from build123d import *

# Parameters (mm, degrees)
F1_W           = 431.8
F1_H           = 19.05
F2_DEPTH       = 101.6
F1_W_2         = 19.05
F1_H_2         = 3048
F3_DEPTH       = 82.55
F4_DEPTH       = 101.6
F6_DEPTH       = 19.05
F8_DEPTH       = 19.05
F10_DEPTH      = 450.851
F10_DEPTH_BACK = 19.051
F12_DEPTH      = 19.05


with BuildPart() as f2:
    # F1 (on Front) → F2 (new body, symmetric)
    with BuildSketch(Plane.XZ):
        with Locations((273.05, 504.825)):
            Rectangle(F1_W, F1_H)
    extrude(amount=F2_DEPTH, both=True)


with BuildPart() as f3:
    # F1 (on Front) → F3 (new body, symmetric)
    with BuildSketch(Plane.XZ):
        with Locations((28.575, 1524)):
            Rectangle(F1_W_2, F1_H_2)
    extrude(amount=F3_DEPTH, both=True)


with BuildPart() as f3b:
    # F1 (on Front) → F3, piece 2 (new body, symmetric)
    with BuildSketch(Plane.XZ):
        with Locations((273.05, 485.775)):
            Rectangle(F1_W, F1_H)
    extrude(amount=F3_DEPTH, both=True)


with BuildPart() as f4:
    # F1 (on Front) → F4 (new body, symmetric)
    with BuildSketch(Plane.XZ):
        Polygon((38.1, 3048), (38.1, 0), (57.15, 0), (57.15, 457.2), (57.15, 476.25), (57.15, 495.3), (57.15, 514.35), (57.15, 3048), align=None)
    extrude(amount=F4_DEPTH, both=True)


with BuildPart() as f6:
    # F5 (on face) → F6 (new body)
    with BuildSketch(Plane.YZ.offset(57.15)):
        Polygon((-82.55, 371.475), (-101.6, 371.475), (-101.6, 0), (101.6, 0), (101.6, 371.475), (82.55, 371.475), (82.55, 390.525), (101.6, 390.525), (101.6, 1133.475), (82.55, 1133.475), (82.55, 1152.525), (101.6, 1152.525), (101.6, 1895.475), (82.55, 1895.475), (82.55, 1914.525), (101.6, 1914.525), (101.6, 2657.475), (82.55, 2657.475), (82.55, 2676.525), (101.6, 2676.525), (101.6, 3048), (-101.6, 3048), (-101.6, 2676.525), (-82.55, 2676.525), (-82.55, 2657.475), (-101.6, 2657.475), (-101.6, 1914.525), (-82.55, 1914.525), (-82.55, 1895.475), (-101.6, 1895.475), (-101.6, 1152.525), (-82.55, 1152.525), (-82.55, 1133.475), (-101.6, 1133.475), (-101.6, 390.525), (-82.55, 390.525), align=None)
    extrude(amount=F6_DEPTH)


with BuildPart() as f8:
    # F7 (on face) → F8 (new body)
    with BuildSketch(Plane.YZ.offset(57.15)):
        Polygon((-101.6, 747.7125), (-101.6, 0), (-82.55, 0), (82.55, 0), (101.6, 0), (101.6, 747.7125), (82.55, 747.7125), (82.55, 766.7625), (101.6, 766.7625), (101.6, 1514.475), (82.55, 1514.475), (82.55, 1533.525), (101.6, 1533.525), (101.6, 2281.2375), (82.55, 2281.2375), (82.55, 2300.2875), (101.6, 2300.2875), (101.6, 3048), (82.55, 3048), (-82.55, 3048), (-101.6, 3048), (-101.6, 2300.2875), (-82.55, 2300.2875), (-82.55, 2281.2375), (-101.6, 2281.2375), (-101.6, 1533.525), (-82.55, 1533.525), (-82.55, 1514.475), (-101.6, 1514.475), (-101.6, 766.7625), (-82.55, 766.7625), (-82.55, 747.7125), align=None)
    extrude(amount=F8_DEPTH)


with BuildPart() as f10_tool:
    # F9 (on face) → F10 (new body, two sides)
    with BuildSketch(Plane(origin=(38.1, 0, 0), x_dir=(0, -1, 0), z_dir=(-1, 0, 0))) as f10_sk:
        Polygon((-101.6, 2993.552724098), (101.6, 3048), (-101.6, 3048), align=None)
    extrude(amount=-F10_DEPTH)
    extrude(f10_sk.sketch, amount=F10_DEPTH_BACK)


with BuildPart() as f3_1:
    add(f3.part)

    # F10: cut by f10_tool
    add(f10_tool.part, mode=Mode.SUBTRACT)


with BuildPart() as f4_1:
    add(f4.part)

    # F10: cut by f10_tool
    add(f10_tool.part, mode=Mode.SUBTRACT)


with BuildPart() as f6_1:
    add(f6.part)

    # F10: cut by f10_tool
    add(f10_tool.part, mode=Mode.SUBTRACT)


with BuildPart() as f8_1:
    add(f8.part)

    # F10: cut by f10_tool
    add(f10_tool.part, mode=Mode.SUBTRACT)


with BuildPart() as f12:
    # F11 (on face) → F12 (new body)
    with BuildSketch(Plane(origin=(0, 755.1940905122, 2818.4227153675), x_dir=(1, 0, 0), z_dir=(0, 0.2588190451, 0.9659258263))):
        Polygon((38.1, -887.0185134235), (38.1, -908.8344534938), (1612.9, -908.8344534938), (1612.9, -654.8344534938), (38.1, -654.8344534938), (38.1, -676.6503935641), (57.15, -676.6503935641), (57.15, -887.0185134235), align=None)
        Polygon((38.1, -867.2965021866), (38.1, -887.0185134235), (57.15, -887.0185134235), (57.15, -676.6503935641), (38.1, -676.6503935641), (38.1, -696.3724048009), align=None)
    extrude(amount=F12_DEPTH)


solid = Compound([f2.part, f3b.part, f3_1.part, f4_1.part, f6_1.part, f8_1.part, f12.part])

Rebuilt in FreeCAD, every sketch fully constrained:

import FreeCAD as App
import Part
import Sketcher
Q = App.Units.Quantity


def add_polygon(sketch, points):
    """Adds a closed chain of lines whose ends are joined by coincident constraints."""
    first, n = sketch.GeometryCount, len(points)
    for a, b in zip(points, points[1:] + points[:1]):
        sketch.addGeometry(Part.LineSegment(App.Vector(*a, 0), App.Vector(*b, 0)), False)
    for i in range(n):
        sketch.addConstraint(Sketcher.Constraint("Coincident", first + i, 2, first + (i + 1) % n, 1))

doc = App.newDocument("Part")
params = doc.addObject("Spreadsheet::Sheet", "Params")
for row, (alias, value) in enumerate([
    ("sketch1_width", "17 in"),
    ("sketch1_height", "0.75 in"),
    ("pad1_length", "8 in"),
    ("sketch2_height", "120 in"),
    ("sketch2_width", "0.75 in"),
    ("pad2_length", "6.5 in"),
    ("sketch3_width", "17 in"),
    ("sketch3_height", "0.75 in"),
    ("pad3_length", "6.5 in"),
    ("sketch4_height", "120 in"),
    ("sketch4_width", "0.75 in"),
    ("pad4_length", "8 in"),
    ("sketch5_width", "8 in"),
    ("sketch5_width2", "0.75 in"),
    ("pad5_length", "0.75 in"),
    ("sketch6_width", "8 in"),
    ("sketch6_width2", "0.75 in"),
    ("pad6_length", "0.75 in"),
    ("sketch7_width", "8 in"),
    ("pad7_length", "450.851 mm"),
    ("pad7_length2", "19.051 mm"),
    ("sketch8_width", "62 in"),
    ("sketch8_height", "10 in"),
    ("pad8_length", "0.75 in"),
], start=1):
    params.set(f"A{row}", alias)
    params.set(f"B{row}", "=" + value)
    params.setAlias(f"B{row}", alias)

body = doc.addObject("PartDesign::Body", "Body")

# Sketch on XZ plane
sketch1 = doc.addObject("Sketcher::SketchObject", "Sketch")
body.addObject(sketch1)
sketch1.AttachmentSupport = (doc.XZ_Plane, [""])
sketch1.MapMode = "FlatFace"
add_polygon(sketch1, [(57, 514), (57, 495), (489, 495), (489, 514)])  # lines 0-3
sketch1.addConstraint(Sketcher.Constraint("Vertical", 0))
sketch1.addConstraint(Sketcher.Constraint("Horizontal", 1))
sketch1.addConstraint(Sketcher.Constraint("Vertical", 2))
sketch1.addConstraint(Sketcher.Constraint("Horizontal", 3))
sketch1.addConstraint(Sketcher.Constraint("DistanceX", 1, 1, 1, 2, Q("17 in")))
sketch1.addConstraint(Sketcher.Constraint("DistanceY", 0, 2, 0, 1, Q("0.75 in")))
sketch1.addConstraint(Sketcher.Constraint("DistanceY", -1, 1, 0, 2, Q("19.5 in")))
sketch1.addConstraint(Sketcher.Constraint("DistanceX", -1, 1, 0, 2, Q("2.25 in")))
sketch1.setExpression("Constraints[8]", "Params.sketch1_width")
sketch1.setExpression("Constraints[9]", "Params.sketch1_height")
pad1 = doc.addObject("PartDesign::Pad", "Pad")
body.addObject(pad1)
pad1.Profile = sketch1
pad1.setExpression("Length", "Params.pad1_length")
pad1.Midplane = True
body2 = doc.addObject("PartDesign::Body", "Body001")

# Sketch on XZ plane
sketch2 = doc.addObject("Sketcher::SketchObject", "Sketch001")
body2.addObject(sketch2)
sketch2.AttachmentSupport = (doc.getObject("XZ_Plane001"), [""])
sketch2.MapMode = "FlatFace"
add_polygon(sketch2, [(19, 3048), (19, 0), (38, 0), (38, 3048)])  # lines 0-3
sketch2.addConstraint(Sketcher.Constraint("Vertical", 0))
sketch2.addConstraint(Sketcher.Constraint("Horizontal", 1))
sketch2.addConstraint(Sketcher.Constraint("Vertical", 2))
sketch2.addConstraint(Sketcher.Constraint("Horizontal", 3))
sketch2.addConstraint(Sketcher.Constraint("PointOnObject", 0, 2, -1))
sketch2.addConstraint(Sketcher.Constraint("DistanceY", 0, 2, 0, 1, Q("120 in")))
sketch2.addConstraint(Sketcher.Constraint("DistanceX", 1, 1, 1, 2, Q("0.75 in")))
sketch2.addConstraint(Sketcher.Constraint("DistanceX", -1, 1, 1, 2, Q("1.5 in")))
sketch2.setExpression("Constraints[9]", "Params.sketch2_height")
sketch2.setExpression("Constraints[10]", "Params.sketch2_width")
pad2 = doc.addObject("PartDesign::Pad", "Pad001")
body2.addObject(pad2)
pad2.Profile = sketch2
pad2.setExpression("Length", "Params.pad2_length")
pad2.Midplane = True
body3 = doc.addObject("PartDesign::Body", "Body002")

# Sketch on XZ plane
sketch3 = doc.addObject("Sketcher::SketchObject", "Sketch002")
body3.addObject(sketch3)
sketch3.AttachmentSupport = (doc.getObject("XZ_Plane002"), [""])
sketch3.MapMode = "FlatFace"
add_polygon(sketch3, [(57, 495), (57, 476), (489, 476), (489, 495)])  # lines 0-3
sketch3.addConstraint(Sketcher.Constraint("Vertical", 0))
sketch3.addConstraint(Sketcher.Constraint("Horizontal", 1))
sketch3.addConstraint(Sketcher.Constraint("Vertical", 2))
sketch3.addConstraint(Sketcher.Constraint("Horizontal", 3))
sketch3.addConstraint(Sketcher.Constraint("DistanceX", 1, 1, 1, 2, Q("17 in")))
sketch3.addConstraint(Sketcher.Constraint("DistanceY", 0, 2, 0, 1, Q("0.75 in")))
sketch3.addConstraint(Sketcher.Constraint("DistanceY", -1, 1, 2, 2, Q("19.5 in")))
sketch3.addConstraint(Sketcher.Constraint("DistanceX", -1, 1, 0, 2, Q("2.25 in")))
sketch3.setExpression("Constraints[8]", "Params.sketch3_width")
sketch3.setExpression("Constraints[9]", "Params.sketch3_height")
pad3 = doc.addObject("PartDesign::Pad", "Pad002")
body3.addObject(pad3)
pad3.Profile = sketch3
pad3.setExpression("Length", "Params.pad3_length")
pad3.Midplane = True
body4 = doc.addObject("PartDesign::Body", "Body003")

# Sketch on XZ plane
sketch4 = doc.addObject("Sketcher::SketchObject", "Sketch003")
body4.addObject(sketch4)
sketch4.AttachmentSupport = (doc.getObject("XZ_Plane003"), [""])
sketch4.MapMode = "FlatFace"
add_polygon(sketch4, [(38, 3048), (38, 0), (57, 0), (57, 3048)])  # lines 0-3
sketch4.addConstraint(Sketcher.Constraint("Vertical", 0))
sketch4.addConstraint(Sketcher.Constraint("Horizontal", 1))
sketch4.addConstraint(Sketcher.Constraint("Vertical", 2))
sketch4.addConstraint(Sketcher.Constraint("Horizontal", 3))
sketch4.addConstraint(Sketcher.Constraint("PointOnObject", 0, 2, -1))
sketch4.addConstraint(Sketcher.Constraint("DistanceY", 0, 2, 0, 1, Q("120 in")))
sketch4.addConstraint(Sketcher.Constraint("DistanceX", 1, 1, 1, 2, Q("0.75 in")))
sketch4.addConstraint(Sketcher.Constraint("DistanceX", -1, 1, 0, 2, Q("1.5 in")))
sketch4.setExpression("Constraints[9]", "Params.sketch4_height")
sketch4.setExpression("Constraints[10]", "Params.sketch4_width")
pad4 = doc.addObject("PartDesign::Pad", "Pad003")
body4.addObject(pad4)
pad4.Profile = sketch4
pad4.setExpression("Length", "Params.pad4_length")
pad4.Midplane = True
body5 = doc.addObject("PartDesign::Body", "Body004")

# Sketch on YZ plane
sketch5 = doc.addObject("Sketcher::SketchObject", "Sketch004")
body5.addObject(sketch5)
sketch5.AttachmentSupport = (doc.getObject("YZ_Plane004"), [""])
sketch5.MapMode = "FlatFace"
sketch5.AttachmentOffset = App.Placement(App.Vector(0, 0, 2.25 * 25.4), App.Rotation())
add_polygon(sketch5, [(-83, 371), (-102, 371), (-102, 0), (102, 0), (102, 371), (83, 371), (83, 391), (102, 391), (102, 1133), (83, 1133), (83, 1153), (102, 1153), (102, 1895), (83, 1895), (83, 1915), (102, 1915), (102, 2657), (83, 2657), (83, 2677), (102, 2677), (102, 3048), (-102, 3048), (-102, 2677), (-83, 2677), (-83, 2657), (-102, 2657), (-102, 1915), (-83, 1915), (-83, 1895), (-102, 1895), (-102, 1153), (-83, 1153), (-83, 1133), (-102, 1133), (-102, 391), (-83, 391)])  # lines 0-35
sketch5.addConstraint(Sketcher.Constraint("Horizontal", 0))
sketch5.addConstraint(Sketcher.Constraint("Vertical", 1))
sketch5.addConstraint(Sketcher.Constraint("Horizontal", 2))
sketch5.addConstraint(Sketcher.Constraint("Vertical", 3))
sketch5.addConstraint(Sketcher.Constraint("Horizontal", 4))
sketch5.addConstraint(Sketcher.Constraint("Vertical", 5))
sketch5.addConstraint(Sketcher.Constraint("Horizontal", 6))
sketch5.addConstraint(Sketcher.Constraint("Vertical", 7))
sketch5.addConstraint(Sketcher.Constraint("Horizontal", 8))
sketch5.addConstraint(Sketcher.Constraint("Vertical", 9))
sketch5.addConstraint(Sketcher.Constraint("Horizontal", 10))
sketch5.addConstraint(Sketcher.Constraint("Vertical", 11))
sketch5.addConstraint(Sketcher.Constraint("Horizontal", 12))
sketch5.addConstraint(Sketcher.Constraint("Vertical", 13))
sketch5.addConstraint(Sketcher.Constraint("Horizontal", 14))
sketch5.addConstraint(Sketcher.Constraint("Vertical", 15))
sketch5.addConstraint(Sketcher.Constraint("Horizontal", 16))
sketch5.addConstraint(Sketcher.Constraint("Vertical", 17))
sketch5.addConstraint(Sketcher.Constraint("Horizontal", 18))
sketch5.addConstraint(Sketcher.Constraint("Vertical", 19))
sketch5.addConstraint(Sketcher.Constraint("Horizontal", 20))
sketch5.addConstraint(Sketcher.Constraint("Vertical", 21))
sketch5.addConstraint(Sketcher.Constraint("Horizontal", 22))
sketch5.addConstraint(Sketcher.Constraint("Vertical", 23))
sketch5.addConstraint(Sketcher.Constraint("Horizontal", 24))
sketch5.addConstraint(Sketcher.Constraint("Vertical", 25))
sketch5.addConstraint(Sketcher.Constraint("Horizontal", 26))
sketch5.addConstraint(Sketcher.Constraint("Vertical", 27))
sketch5.addConstraint(Sketcher.Constraint("Horizontal", 28))
sketch5.addConstraint(Sketcher.Constraint("Vertical", 29))
sketch5.addConstraint(Sketcher.Constraint("Horizontal", 30))
sketch5.addConstraint(Sketcher.Constraint("Vertical", 31))
sketch5.addConstraint(Sketcher.Constraint("Horizontal", 32))
sketch5.addConstraint(Sketcher.Constraint("Vertical", 33))
sketch5.addConstraint(Sketcher.Constraint("Horizontal", 34))
sketch5.addConstraint(Sketcher.Constraint("Vertical", 35))
sketch5.addConstraint(Sketcher.Constraint("Symmetric", 1, 2, 2, 2, -1, 1))
sketch5.addConstraint(Sketcher.Constraint("Symmetric", 18, 2, 21, 2, -2))
sketch5.addConstraint(Sketcher.Constraint("Symmetric", 16, 2, 23, 2, -2))
sketch5.addConstraint(Sketcher.Constraint("Symmetric", 14, 2, 25, 2, -2))
sketch5.addConstraint(Sketcher.Constraint("Symmetric", 12, 2, 27, 2, -2))
sketch5.addConstraint(Sketcher.Constraint("Symmetric", 10, 2, 29, 2, -2))
sketch5.addConstraint(Sketcher.Constraint("Symmetric", 8, 2, 31, 2, -2))
sketch5.addConstraint(Sketcher.Constraint("Symmetric", 6, 2, 33, 2, -2))
sketch5.addConstraint(Sketcher.Constraint("Symmetric", 4, 2, 35, 2, -2))
sketch5.addConstraint(Sketcher.Constraint("Vertical", 3, 2, 6, 2))
sketch5.addConstraint(Sketcher.Constraint("Vertical", 5, 2, 8, 2))
sketch5.addConstraint(Sketcher.Constraint("Vertical", 7, 2, 10, 2))
sketch5.addConstraint(Sketcher.Constraint("Vertical", 9, 2, 12, 2))
sketch5.addConstraint(Sketcher.Constraint("Vertical", 11, 2, 14, 2))
sketch5.addConstraint(Sketcher.Constraint("Vertical", 13, 2, 16, 2))
sketch5.addConstraint(Sketcher.Constraint("Vertical", 15, 2, 18, 2))
sketch5.addConstraint(Sketcher.Constraint("Equal", 34, 5))
sketch5.addConstraint(Sketcher.Constraint("Equal", 5, 9))
sketch5.addConstraint(Sketcher.Constraint("Equal", 7, 11))
sketch5.addConstraint(Sketcher.Constraint("Equal", 9, 13))
sketch5.addConstraint(Sketcher.Constraint("Equal", 11, 15))
sketch5.addConstraint(Sketcher.Constraint("Equal", 13, 17))
sketch5.addConstraint(Sketcher.Constraint("Equal", 3, 19))
sketch5.addConstraint(Sketcher.Constraint("DistanceX", 2, 1, 2, 2, Q("8 in")))
sketch5.addConstraint(Sketcher.Constraint("DistanceY", -1, 1, 19, 2, Q("120 in")))
sketch5.addConstraint(Sketcher.Constraint("DistanceY", 3, 2, 7, 2, Q("30 in")))
sketch5.addConstraint(Sketcher.Constraint("DistanceX", 0, 2, 0, 1, Q("0.75 in")))
sketch5.setExpression("Constraints[95]", "Params.sketch5_width")
sketch5.setExpression("Constraints[98]", "Params.sketch5_width2")
pad5 = doc.addObject("PartDesign::Pad", "Pad004")
body5.addObject(pad5)
pad5.Profile = sketch5
pad5.setExpression("Length", "Params.pad5_length")
body6 = doc.addObject("PartDesign::Body", "Body005")

# Sketch on YZ plane
sketch6 = doc.addObject("Sketcher::SketchObject", "Sketch005")
body6.addObject(sketch6)
sketch6.AttachmentSupport = (doc.getObject("YZ_Plane005"), [""])
sketch6.MapMode = "FlatFace"
sketch6.AttachmentOffset = App.Placement(App.Vector(0, 0, 2.25 * 25.4), App.Rotation())
add_polygon(sketch6, [(-102, 748), (-102, 0), (102, 0), (102, 748), (83, 748), (83, 767), (102, 767), (102, 1514), (83, 1514), (83, 1534), (102, 1534), (102, 2281), (83, 2281), (83, 2300), (102, 2300), (102, 3048), (-102, 3048), (-102, 2300), (-83, 2300), (-83, 2281), (-102, 2281), (-102, 1534), (-83, 1534), (-83, 1514), (-102, 1514), (-102, 767), (-83, 767), (-83, 748)])  # lines 0-27
sketch6.addConstraint(Sketcher.Constraint("Vertical", 0))
sketch6.addConstraint(Sketcher.Constraint("Horizontal", 1))
sketch6.addConstraint(Sketcher.Constraint("Vertical", 2))
sketch6.addConstraint(Sketcher.Constraint("Horizontal", 3))
sketch6.addConstraint(Sketcher.Constraint("Vertical", 4))
sketch6.addConstraint(Sketcher.Constraint("Horizontal", 5))
sketch6.addConstraint(Sketcher.Constraint("Vertical", 6))
sketch6.addConstraint(Sketcher.Constraint("Horizontal", 7))
sketch6.addConstraint(Sketcher.Constraint("Vertical", 8))
sketch6.addConstraint(Sketcher.Constraint("Horizontal", 9))
sketch6.addConstraint(Sketcher.Constraint("Vertical", 10))
sketch6.addConstraint(Sketcher.Constraint("Horizontal", 11))
sketch6.addConstraint(Sketcher.Constraint("Vertical", 12))
sketch6.addConstraint(Sketcher.Constraint("Horizontal", 13))
sketch6.addConstraint(Sketcher.Constraint("Vertical", 14))
sketch6.addConstraint(Sketcher.Constraint("Horizontal", 15))
sketch6.addConstraint(Sketcher.Constraint("Vertical", 16))
sketch6.addConstraint(Sketcher.Constraint("Horizontal", 17))
sketch6.addConstraint(Sketcher.Constraint("Vertical", 18))
sketch6.addConstraint(Sketcher.Constraint("Horizontal", 19))
sketch6.addConstraint(Sketcher.Constraint("Vertical", 20))
sketch6.addConstraint(Sketcher.Constraint("Horizontal", 21))
sketch6.addConstraint(Sketcher.Constraint("Vertical", 22))
sketch6.addConstraint(Sketcher.Constraint("Horizontal", 23))
sketch6.addConstraint(Sketcher.Constraint("Vertical", 24))
sketch6.addConstraint(Sketcher.Constraint("Horizontal", 25))
sketch6.addConstraint(Sketcher.Constraint("Vertical", 26))
sketch6.addConstraint(Sketcher.Constraint("Horizontal", 27))
sketch6.addConstraint(Sketcher.Constraint("Symmetric", 0, 2, 1, 2, -1, 1))
sketch6.addConstraint(Sketcher.Constraint("Symmetric", 13, 2, 16, 2, -2))
sketch6.addConstraint(Sketcher.Constraint("Symmetric", 11, 2, 18, 2, -2))
sketch6.addConstraint(Sketcher.Constraint("Symmetric", 9, 2, 20, 2, -2))
sketch6.addConstraint(Sketcher.Constraint("Symmetric", 7, 2, 22, 2, -2))
sketch6.addConstraint(Sketcher.Constraint("Symmetric", 5, 2, 24, 2, -2))
sketch6.addConstraint(Sketcher.Constraint("Symmetric", 3, 2, 26, 2, -2))
sketch6.addConstraint(Sketcher.Constraint("Vertical", 2, 2, 5, 2))
sketch6.addConstraint(Sketcher.Constraint("Vertical", 4, 2, 7, 2))
sketch6.addConstraint(Sketcher.Constraint("Vertical", 6, 2, 9, 2))
sketch6.addConstraint(Sketcher.Constraint("Vertical", 8, 2, 11, 2))
sketch6.addConstraint(Sketcher.Constraint("Vertical", 10, 2, 13, 2))
sketch6.addConstraint(Sketcher.Constraint("Equal", 27, 4))
sketch6.addConstraint(Sketcher.Constraint("Equal", 2, 6))
sketch6.addConstraint(Sketcher.Constraint("Equal", 4, 8))
sketch6.addConstraint(Sketcher.Constraint("Equal", 6, 10))
sketch6.addConstraint(Sketcher.Constraint("Equal", 8, 12))
sketch6.addConstraint(Sketcher.Constraint("Equal", 10, 14))
sketch6.addConstraint(Sketcher.Constraint("DistanceX", 1, 1, 1, 2, Q("8 in")))
sketch6.addConstraint(Sketcher.Constraint("DistanceY", -1, 1, 14, 2, Q("120 in")))
sketch6.addConstraint(Sketcher.Constraint("DistanceX", 3, 2, 3, 1, Q("0.75 in")))
sketch6.setExpression("Constraints[74]", "Params.sketch6_width")
sketch6.setExpression("Constraints[76]", "Params.sketch6_width2")
pad6 = doc.addObject("PartDesign::Pad", "Pad005")
body6.addObject(pad6)
pad6.Profile = sketch6
pad6.setExpression("Length", "Params.pad6_length")
body7 = doc.addObject("PartDesign::Body", "Body006")

# Sketch on YZ plane
sketch7 = doc.addObject("Sketcher::SketchObject", "Sketch006")
body7.addObject(sketch7)
sketch7.AttachmentSupport = (doc.getObject("YZ_Plane006"), [""])
sketch7.MapMode = "FlatFace"
sketch7.AttachmentOffset = App.Placement(App.Vector(0, 0, 1.5 * 25.4), App.Rotation())
add_polygon(sketch7, [(102, 2994), (-102, 3048), (102, 3048)])  # lines 0-2
sketch7.addConstraint(Sketcher.Constraint("Horizontal", 1))
sketch7.addConstraint(Sketcher.Constraint("Vertical", 2))
sketch7.addConstraint(Sketcher.Constraint("DistanceX", 1, 1, 1, 2, Q("8 in")))
sketch7.addConstraint(Sketcher.Constraint("DistanceX", 0, 2, -1, 1, Q("4 in")))
sketch7.addConstraint(Sketcher.Constraint("DistanceY", -1, 1, 0, 2, Q("120 in")))
sketch7.addConstraint(Sketcher.Constraint("Angle", 0, Q("165 deg")))
sketch7.setExpression("Constraints[5]", "Params.sketch7_width")
pad7 = doc.addObject("PartDesign::Pad", "Pad006")
body7.addObject(pad7)
pad7.Profile = sketch7
pad7.Type = "TwoLengths"
pad7.setExpression("Length", "Params.pad7_length")
pad7.setExpression("Length2", "Params.pad7_length2")
doc.recompute()

body8 = doc.addObject("PartDesign::Body", "Body007")
body8.BaseFeature = body7
boolean = doc.addObject("PartDesign::Boolean", "Boolean")
body2.addObject(boolean)
boolean.Type = "Cut"
boolean.addObjects([body8])
doc.recompute()

body9 = doc.addObject("PartDesign::Body", "Body008")
body9.BaseFeature = body7
boolean2 = doc.addObject("PartDesign::Boolean", "Boolean001")
body4.addObject(boolean2)
boolean2.Type = "Cut"
boolean2.addObjects([body9])
doc.recompute()

body10 = doc.addObject("PartDesign::Body", "Body009")
body10.BaseFeature = body7
boolean3 = doc.addObject("PartDesign::Boolean", "Boolean002")
body5.addObject(boolean3)
boolean3.Type = "Cut"
boolean3.addObjects([body10])
doc.recompute()

boolean4 = doc.addObject("PartDesign::Boolean", "Boolean003")
body6.addObject(boolean4)
boolean4.Type = "Cut"
boolean4.addObjects([body7])
body11 = doc.addObject("PartDesign::Body", "Body010")

# Sketch on an angled plane
sketch8 = doc.addObject("Sketcher::SketchObject", "Sketch007")
body11.addObject(sketch8)
sketch8.Placement = App.Placement(App.Vector(0, 755.194091, 2818.422715), App.Rotation(App.Vector(1, 0, 0), App.Vector(0, 0.965925826, -0.258819045), App.Vector(0, 0.258819045, 0.965925826), "ZXY"))
add_polygon(sketch8, [(38, -909), (1613, -909), (1613, -655), (38, -655)])  # lines 0-3
sketch8.addConstraint(Sketcher.Constraint("Horizontal", 0))
sketch8.addConstraint(Sketcher.Constraint("Vertical", 1))
sketch8.addConstraint(Sketcher.Constraint("Horizontal", 2))
sketch8.addConstraint(Sketcher.Constraint("Vertical", 3))
sketch8.addConstraint(Sketcher.Constraint("DistanceX", 0, 1, 0, 2, Q("62 in")))
sketch8.addConstraint(Sketcher.Constraint("DistanceY", 1, 1, 1, 2, Q("10 in")))
sketch8.addConstraint(Sketcher.Constraint("DistanceX", -1, 1, 0, 2, Q("63.5 in")))
sketch8.addConstraint(Sketcher.Constraint("DistanceY", 0, 2, -1, 1, Q("908.834453 mm")))
sketch8.setExpression("Constraints[8]", "Params.sketch8_width")
sketch8.setExpression("Constraints[9]", "Params.sketch8_height")
pad8 = doc.addObject("PartDesign::Pad", "Pad007")
body11.addObject(pad8)
pad8.Profile = sketch8
pad8.setExpression("Length", "Params.pad8_length")

doc.recompute()
